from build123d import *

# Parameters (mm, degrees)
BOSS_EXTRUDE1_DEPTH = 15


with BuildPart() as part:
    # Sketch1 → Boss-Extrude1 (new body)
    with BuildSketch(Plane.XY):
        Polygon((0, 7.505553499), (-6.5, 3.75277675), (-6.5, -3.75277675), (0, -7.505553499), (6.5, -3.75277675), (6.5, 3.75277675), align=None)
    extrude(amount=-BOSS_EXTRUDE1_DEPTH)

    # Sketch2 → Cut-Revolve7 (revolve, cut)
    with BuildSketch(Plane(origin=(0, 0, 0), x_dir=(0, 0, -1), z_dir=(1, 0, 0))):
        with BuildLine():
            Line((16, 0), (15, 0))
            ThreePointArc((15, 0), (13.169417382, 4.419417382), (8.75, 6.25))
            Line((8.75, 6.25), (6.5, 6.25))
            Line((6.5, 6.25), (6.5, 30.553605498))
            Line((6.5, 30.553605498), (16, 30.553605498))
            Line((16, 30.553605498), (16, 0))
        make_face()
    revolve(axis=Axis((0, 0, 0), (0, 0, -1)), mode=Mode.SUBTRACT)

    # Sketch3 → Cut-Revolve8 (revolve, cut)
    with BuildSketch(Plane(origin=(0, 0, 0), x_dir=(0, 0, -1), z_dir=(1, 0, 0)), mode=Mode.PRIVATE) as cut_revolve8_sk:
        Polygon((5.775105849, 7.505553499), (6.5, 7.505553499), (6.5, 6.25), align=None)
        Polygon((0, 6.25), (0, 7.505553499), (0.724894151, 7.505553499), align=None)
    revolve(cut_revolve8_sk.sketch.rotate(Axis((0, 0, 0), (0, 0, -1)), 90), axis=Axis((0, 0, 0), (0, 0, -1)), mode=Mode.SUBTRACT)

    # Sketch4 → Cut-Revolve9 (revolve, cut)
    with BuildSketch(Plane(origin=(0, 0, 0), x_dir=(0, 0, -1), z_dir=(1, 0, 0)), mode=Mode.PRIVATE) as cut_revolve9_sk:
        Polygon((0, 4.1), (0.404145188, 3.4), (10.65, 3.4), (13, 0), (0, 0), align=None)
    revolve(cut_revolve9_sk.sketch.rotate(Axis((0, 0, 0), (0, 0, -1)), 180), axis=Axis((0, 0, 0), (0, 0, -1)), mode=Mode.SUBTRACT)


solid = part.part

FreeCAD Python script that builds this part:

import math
import FreeCAD as App
import Part
import Sketcher
Q = App.Units.Quantity

doc = App.newDocument("Part")
params = doc.addObject("Spreadsheet::Sheet", "Params")
for row, (alias, value) in enumerate([
    ("pad1_length", "15 mm"),
    ("sketch2_height", "1 mm"),
    ("sketch2_radius", "6.25 mm"),
    ("sketch2_height2", "9.5 mm"),
    ("groove_angle", "360 deg"),
    ("groove2_angle", "360 deg"),
    ("sketch4_height", "13 mm"),
    ("sketch4_width", "4.1 mm"),
    ("groove3_angle", "360 deg"),
], start=1):
    params.set(f"A{row}", alias)
    params.set(f"B{row}", "=" + value)
    params.setAlias(f"B{row}", alias)

body = doc.addObject("PartDesign::Body", "Body")

sketch1 = body.newObject("Sketcher::SketchObject", "Sketch")
sketch1.AttachmentSupport = (doc.getObject("XY_Plane"), [""])
sketch1.MapMode = "FlatFace"
sketch1.addGeometry(Part.LineSegment(App.Vector(0, 8, 0), App.Vector(-6, 4, 0)), False)
sketch1.addGeometry(Part.LineSegment(App.Vector(-6, 4, 0), App.Vector(-6, -4, 0)), False)
sketch1.addGeometry(Part.LineSegment(App.Vector(-6, -4, 0), App.Vector(0, -8, 0)), False)
sketch1.addGeometry(Part.LineSegment(App.Vector(0, -8, 0), App.Vector(6, -4, 0)), False)
sketch1.addGeometry(Part.LineSegment(App.Vector(6, -4, 0), App.Vector(6, 4, 0)), False)
sketch1.addGeometry(Part.LineSegment(App.Vector(6, 4, 0), App.Vector(0, 8, 0)), False)
sketch1.addConstraint(Sketcher.Constraint("Coincident", 0, 2, 1, 1))
sketch1.addConstraint(Sketcher.Constraint("Coincident", 1, 2, 2, 1))
sketch1.addConstraint(Sketcher.Constraint("Coincident", 2, 2, 3, 1))
sketch1.addConstraint(Sketcher.Constraint("Coincident", 3, 2, 4, 1))
sketch1.addConstraint(Sketcher.Constraint("Coincident", 4, 2, 5, 1))
sketch1.addConstraint(Sketcher.Constraint("Coincident", 5, 2, 0, 1))
sketch1.addConstraint(Sketcher.Constraint("Vertical", 1))
sketch1.addConstraint(Sketcher.Constraint("Vertical", 4))
sketch1.addConstraint(Sketcher.Constraint("Symmetric", 0, 2, 3, 2, -1, 1))
sketch1.addConstraint(Sketcher.Constraint("Symmetric", 2, 2, 5, 2, -1, 1))
sketch1.addConstraint(Sketcher.Constraint("PointOnObject", 2, 2, -2))
sketch1.addConstraint(Sketcher.Constraint("Parallel", 2, 5))
sketch1.addConstraint(Sketcher.Constraint("Horizontal", 1, 2, 3, 2))
sketch1.addConstraint(Sketcher.Constraint("Angle", 0, Q("-150 deg")))
sketch1.addConstraint(Sketcher.Constraint("DistanceX", 1, 2, 3, 2, Q("13 mm")))
sketch1.addConstraint(Sketcher.Constraint("DistanceY", 1, 2, 1, 1, Q("7.505554 mm")))
pad1 = body.newObject("PartDesign::Pad", "Pad")
pad1.Profile = sketch1
pad1.setExpression("Length", "Params.pad1_length")
pad1.Reversed = True

sketch2 = body.newObject("Sketcher::SketchObject", "Sketch001")
sketch2.AttachmentSupport = (doc.getObject("YZ_Plane"), [""])
sketch2.MapMode = "FlatFace"
sketch2.addGeometry(Part.LineSegment(App.Vector(0, -15, 0), App.Vector(0, -16, 0)), False)
sketch2.addGeometry(Part.LineSegment(App.Vector(0, -16, 0), App.Vector(30.6, -16, 0)), False)
sketch2.addGeometry(Part.LineSegment(App.Vector(30.6, -16, 0), App.Vector(30.6, -6.5, 0)), False)
sketch2.addGeometry(Part.LineSegment(App.Vector(30.6, -6.5, 0), App.Vector(6.2, -6.5, 0)), False)
sketch2.addGeometry(Part.LineSegment(App.Vector(6.2, -6.5, 0), App.Vector(6.2, -8.8, 0)), False)
sketch2.addGeometry(Part.ArcOfCircle(Part.Circle(App.Vector(0, -8.7, 0), App.Vector(0, 0, 1), 6.3), math.radians(-90), math.radians(0)), False)
sketch2.addConstraint(Sketcher.Constraint("Coincident", 0, 2, 1, 1))
sketch2.addConstraint(Sketcher.Constraint("Coincident", 1, 2, 2, 1))
sketch2.addConstraint(Sketcher.Constraint("Coincident", 2, 2, 3, 1))
sketch2.addConstraint(Sketcher.Constraint("Coincident", 3, 2, 4, 1))
sketch2.addConstraint(Sketcher.Constraint("Tangent", 4, 2, 5, 2))
sketch2.addConstraint(Sketcher.Constraint("Coincident", 5, 1, 0, 1))
sketch2.addConstraint(Sketcher.Constraint("Vertical", 0))
sketch2.addConstraint(Sketcher.Constraint("Horizontal", 1))
sketch2.addConstraint(Sketcher.Constraint("Vertical", 2))
sketch2.addConstraint(Sketcher.Constraint("Horizontal", 3))
sketch2.addConstraint(Sketcher.Constraint("Vertical", 4))
sketch2.addConstraint(Sketcher.Constraint("PointOnObject", 5, 3, -2))
sketch2.addConstraint(Sketcher.Constraint("PointOnObject", 0, 2, -2))
sketch2.addConstraint(Sketcher.Constraint("DistanceY", 0, 2, 0, 1, Q("1 mm")))
sketch2.addConstraint(Sketcher.Constraint("Radius", 5, Q("6.25 mm")))
sketch2.addConstraint(Sketcher.Constraint("DistanceY", 2, 1, 2, 2, Q("9.5 mm")))
sketch2.addConstraint(Sketcher.Constraint("DistanceY", 0, 2, -1, 1, Q("16 mm")))
sketch2.addConstraint(Sketcher.Constraint("DistanceX", 1, 1, 1, 2, Q("30.553605 mm")))
sketch2.setExpression("Constraints[13]", "Params.sketch2_height")
sketch2.setExpression("Constraints[14]", "Params.sketch2_radius")
sketch2.setExpression("Constraints[15]", "Params.sketch2_height2")
groove = body.newObject("PartDesign::Groove", "Groove")
groove.Profile = sketch2
groove.ReferenceAxis = (sketch2, ["V_Axis"])
groove.setExpression("Angle", "Params.groove_angle")

sketch3 = body.newObject("Sketcher::SketchObject", "Sketch002")
sketch3.AttachmentSupport = (doc.getObject("YZ_Plane"), [""])
sketch3.MapMode = "FlatFace"
sketch3.addGeometry(Part.LineSegment(App.Vector(7.5, -6.5, 0), App.Vector(7.5, -5.8, 0)), False)
sketch3.addGeometry(Part.LineSegment(App.Vector(7.5, -5.8, 0), App.Vector(6.2, -6.5, 0)), False)
sketch3.addGeometry(Part.LineSegment(App.Vector(6.2, -6.5, 0), App.Vector(7.5, -6.5, 0)), False)
sketch3.addGeometry(Part.LineSegment(App.Vector(7.5, 0, 0), App.Vector(6.2, 0, 0)), False)
sketch3.addGeometry(Part.LineSegment(App.Vector(6.2, 0, 0), App.Vector(7.5, -0.7, 0)), False)
sketch3.addGeometry(Part.LineSegment(App.Vector(7.5, -0.7, 0), App.Vector(7.5, 0, 0)), False)
sketch3.addConstraint(Sketcher.Constraint("Coincident", 0, 2, 1, 1))
sketch3.addConstraint(Sketcher.Constraint("Coincident", 1, 2, 2, 1))
sketch3.addConstraint(Sketcher.Constraint("Coincident", 2, 2, 0, 1))
sketch3.addConstraint(Sketcher.Constraint("Coincident", 3, 2, 4, 1))
sketch3.addConstraint(Sketcher.Constraint("Coincident", 4, 2, 5, 1))
sketch3.addConstraint(Sketcher.Constraint("Coincident", 5, 2, 3, 1))
sketch3.addConstraint(Sketcher.Constraint("Vertical", 0))
sketch3.addConstraint(Sketcher.Constraint("Horizontal", 2))
sketch3.addConstraint(Sketcher.Constraint("Horizontal", 3))
sketch3.addConstraint(Sketcher.Constraint("Vertical", 5))
sketch3.addConstraint(Sketcher.Constraint("PointOnObject", 3, 2, -1))
sketch3.addConstraint(Sketcher.Constraint("Vertical", 1, 2, 3, 2))
sketch3.addConstraint(Sketcher.Constraint("Vertical", 2, 2, 4, 2))
sketch3.addConstraint(Sketcher.Constraint("Equal", 0, 5))
sketch3.addConstraint(Sketcher.Constraint("Angle", 1, Q("-150 deg")))
sketch3.addConstraint(Sketcher.Constraint("DistanceY", 1, 2, -1, 1, Q("6.5 mm")))
sketch3.addConstraint(Sketcher.Constraint("DistanceX", -1, 1, 1, 2, Q("6.25 mm")))
sketch3.addConstraint(Sketcher.Constraint("Distance", 1, Q("1.449788 mm")))
groove2 = body.newObject("PartDesign::Groove", "Groove001")
groove2.Profile = sketch3
groove2.ReferenceAxis = (sketch3, ["V_Axis"])
groove2.setExpression("Angle", "Params.groove2_angle")

sketch4 = body.newObject("Sketcher::SketchObject", "Sketch003")
sketch4.AttachmentSupport = (doc.getObject("YZ_Plane"), [""])
sketch4.MapMode = "FlatFace"
sketch4.addGeometry(Part.LineSegment(App.Vector(3.4, -0.4, 0), App.Vector(4.1, 0, 0)), False)
sketch4.addGeometry(Part.LineSegment(App.Vector(4.1, 0, 0), App.Vector(0, 0, 0)), False)
sketch4.addGeometry(Part.LineSegment(App.Vector(0, 0, 0), App.Vector(0, -13, 0)), False)
sketch4.addGeometry(Part.LineSegment(App.Vector(0, -13, 0), App.Vector(3.4, -10.7, 0)), False)
sketch4.addGeometry(Part.LineSegment(App.Vector(3.4, -10.7, 0), App.Vector(3.4, -0.4, 0)), False)
sketch4.addConstraint(Sketcher.Constraint("Coincident", 0, 2, 1, 1))
sketch4.addConstraint(Sketcher.Constraint("Coincident", 1, 2, 2, 1))
sketch4.addConstraint(Sketcher.Constraint("Coincident", 2, 2, 3, 1))
sketch4.addConstraint(Sketcher.Constraint("Coincident", 3, 2, 4, 1))
sketch4.addConstraint(Sketcher.Constraint("Coincident", 4, 2, 0, 1))
sketch4.addConstraint(Sketcher.Constraint("Horizontal", 1))
sketch4.addConstraint(Sketcher.Constraint("Vertical", 2))
sketch4.addConstraint(Sketcher.Constraint("Vertical", 4))
sketch4.addConstraint(Sketcher.Constraint("Coincident", 1, 2, -1, 1))
sketch4.addConstraint(Sketcher.Constraint("DistanceY", 2, 2, 2, 1, Q("13 mm")))
sketch4.addConstraint(Sketcher.Constraint("Angle", 0, Q("30 deg")))
sketch4.addConstraint(Sketcher.Constraint("DistanceX", 1, 2, 1, 1, Q("4.1 mm")))
sketch4.addConstraint(Sketcher.Constraint("DistanceX", -1, 1, 3, 2, Q("3.4 mm")))
sketch4.addConstraint(Sketcher.Constraint("DistanceY", 3, 2, -1, 1, Q("10.65 mm")))
sketch4.setExpression("Constraints[9]", "Params.sketch4_height")
sketch4.setExpression("Constraints[11]", "Params.sketch4_width")
groove3 = body.newObject("PartDesign::Groove", "Groove002")
groove3.Profile = sketch4
groove3.ReferenceAxis = (sketch4, ["V_Axis"])
groove3.setExpression("Angle", "Params.groove3_angle")

doc.recompute()
